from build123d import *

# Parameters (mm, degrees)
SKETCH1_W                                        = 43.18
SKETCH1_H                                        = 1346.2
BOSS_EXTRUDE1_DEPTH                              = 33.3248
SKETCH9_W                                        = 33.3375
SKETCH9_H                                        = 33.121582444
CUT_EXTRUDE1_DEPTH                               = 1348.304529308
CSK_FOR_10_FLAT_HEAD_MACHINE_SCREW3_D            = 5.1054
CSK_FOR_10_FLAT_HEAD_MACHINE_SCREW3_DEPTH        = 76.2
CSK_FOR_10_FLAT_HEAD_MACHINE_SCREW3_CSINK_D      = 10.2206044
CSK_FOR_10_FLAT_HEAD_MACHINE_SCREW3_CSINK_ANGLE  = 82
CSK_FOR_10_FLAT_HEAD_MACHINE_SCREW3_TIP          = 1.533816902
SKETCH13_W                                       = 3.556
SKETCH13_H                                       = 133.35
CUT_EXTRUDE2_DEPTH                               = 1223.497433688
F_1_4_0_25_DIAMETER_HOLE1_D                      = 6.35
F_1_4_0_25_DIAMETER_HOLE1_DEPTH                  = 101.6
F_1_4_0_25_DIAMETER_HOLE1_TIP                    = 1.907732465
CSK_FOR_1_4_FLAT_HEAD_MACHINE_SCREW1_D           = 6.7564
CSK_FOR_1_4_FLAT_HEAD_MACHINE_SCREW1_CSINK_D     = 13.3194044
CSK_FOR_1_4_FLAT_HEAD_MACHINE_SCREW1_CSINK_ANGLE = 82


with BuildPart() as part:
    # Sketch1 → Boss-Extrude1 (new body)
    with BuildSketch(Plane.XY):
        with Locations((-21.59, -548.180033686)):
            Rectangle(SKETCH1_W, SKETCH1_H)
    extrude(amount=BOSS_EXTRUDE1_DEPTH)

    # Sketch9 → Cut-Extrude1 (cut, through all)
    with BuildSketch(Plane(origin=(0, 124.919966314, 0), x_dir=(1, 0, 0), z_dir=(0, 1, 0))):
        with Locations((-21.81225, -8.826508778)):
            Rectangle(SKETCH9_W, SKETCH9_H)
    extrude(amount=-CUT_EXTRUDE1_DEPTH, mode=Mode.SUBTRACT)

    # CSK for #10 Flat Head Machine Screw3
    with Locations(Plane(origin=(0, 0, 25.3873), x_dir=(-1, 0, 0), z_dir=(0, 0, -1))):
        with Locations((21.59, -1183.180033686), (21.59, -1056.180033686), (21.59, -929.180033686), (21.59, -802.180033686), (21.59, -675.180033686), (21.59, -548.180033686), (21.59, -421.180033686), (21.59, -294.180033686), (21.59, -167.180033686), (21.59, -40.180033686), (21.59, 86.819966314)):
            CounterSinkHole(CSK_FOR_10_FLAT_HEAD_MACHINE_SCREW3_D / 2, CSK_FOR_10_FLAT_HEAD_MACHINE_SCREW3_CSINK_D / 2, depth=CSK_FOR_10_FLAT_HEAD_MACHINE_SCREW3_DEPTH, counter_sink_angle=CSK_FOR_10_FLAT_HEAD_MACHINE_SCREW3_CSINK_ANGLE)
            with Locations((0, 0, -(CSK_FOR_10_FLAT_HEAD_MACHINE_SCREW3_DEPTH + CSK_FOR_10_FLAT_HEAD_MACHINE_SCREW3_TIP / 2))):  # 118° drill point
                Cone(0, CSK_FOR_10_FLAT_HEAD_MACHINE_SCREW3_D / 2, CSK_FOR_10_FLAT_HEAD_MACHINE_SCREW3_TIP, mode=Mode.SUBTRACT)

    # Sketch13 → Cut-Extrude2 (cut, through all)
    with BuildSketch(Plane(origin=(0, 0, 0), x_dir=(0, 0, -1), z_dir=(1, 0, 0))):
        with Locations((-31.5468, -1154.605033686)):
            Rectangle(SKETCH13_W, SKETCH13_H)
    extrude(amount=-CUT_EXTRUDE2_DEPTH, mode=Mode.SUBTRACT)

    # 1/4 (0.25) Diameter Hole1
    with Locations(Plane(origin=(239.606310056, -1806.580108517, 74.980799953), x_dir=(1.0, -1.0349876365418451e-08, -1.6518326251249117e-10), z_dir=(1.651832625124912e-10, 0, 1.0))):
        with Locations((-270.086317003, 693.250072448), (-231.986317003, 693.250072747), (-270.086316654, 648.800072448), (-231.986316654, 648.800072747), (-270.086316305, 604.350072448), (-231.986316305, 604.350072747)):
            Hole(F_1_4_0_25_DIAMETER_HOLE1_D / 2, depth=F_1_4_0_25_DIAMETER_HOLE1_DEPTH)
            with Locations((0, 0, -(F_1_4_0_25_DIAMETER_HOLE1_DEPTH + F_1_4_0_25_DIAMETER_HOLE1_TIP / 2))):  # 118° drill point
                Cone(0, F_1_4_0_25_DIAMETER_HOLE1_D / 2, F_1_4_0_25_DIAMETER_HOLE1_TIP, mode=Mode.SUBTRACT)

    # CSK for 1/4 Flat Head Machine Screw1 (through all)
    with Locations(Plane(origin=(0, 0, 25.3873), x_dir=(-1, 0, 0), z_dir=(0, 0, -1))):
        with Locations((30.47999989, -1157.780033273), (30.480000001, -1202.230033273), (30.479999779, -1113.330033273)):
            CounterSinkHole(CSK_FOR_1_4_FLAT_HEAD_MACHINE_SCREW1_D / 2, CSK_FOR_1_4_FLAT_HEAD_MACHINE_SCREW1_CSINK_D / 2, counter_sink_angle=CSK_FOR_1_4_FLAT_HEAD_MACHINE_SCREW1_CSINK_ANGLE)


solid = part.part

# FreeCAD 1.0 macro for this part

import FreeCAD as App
import Part
import Sketcher

V = App.Vector
Q = App.Units.Quantity


def add_polygon(sketch, points):
    """Adds a closed chain of lines whose ends are joined by coincident constraints."""
    first, n = sketch.GeometryCount, len(points)
    for a, b in zip(points, points[1:] + points[:1]):
        sketch.addGeometry(Part.LineSegment(App.Vector(*a, 0), App.Vector(*b, 0)), False)
    for i in range(n):
        sketch.addConstraint(Sketcher.Constraint("Coincident", first + i, 2, first + (i + 1) % n, 1))

doc = App.newDocument("Part")
body = doc.addObject("PartDesign::Body", "Body")

sketch1 = doc.addObject("Sketcher::SketchObject", "Sketch")
body.addObject(sketch1)
sketch1.AttachmentSupport = (doc.XY_Plane, [""])
sketch1.MapMode = "FlatFace"
add_polygon(sketch1, [(-43.18, 124.919966), (-43.18, -1221.280034), (0, -1221.280034), (0, 124.919966)])
sketch1.addConstraint(Sketcher.Constraint("Vertical", 0))
sketch1.addConstraint(Sketcher.Constraint("Horizontal", 1))
sketch1.addConstraint(Sketcher.Constraint("Vertical", 2))
sketch1.addConstraint(Sketcher.Constraint("Horizontal", 3))
sketch1.addConstraint(Sketcher.Constraint("PointOnObject", 1, 2, -2))
sketch1.addConstraint(Sketcher.Constraint("DistanceY", 0, 2, 0, 1, Q("53 in")))
sketch1.addConstraint(Sketcher.Constraint("DistanceX", 1, 1, 1, 2, Q("1.7 in")))
sketch1.addConstraint(Sketcher.Constraint("DistanceY", 0, 2, -1, 1, Q("1221.280034 mm")))
pad1 = doc.addObject("PartDesign::Pad", "Pad")
body.addObject(pad1)
pad1.Profile = sketch1
pad1.Length = Q("1.312 in")

sketch2 = doc.addObject("Sketcher::SketchObject", "Sketch001")
body.addObject(sketch2)
sketch2.AttachmentSupport = (doc.XZ_Plane, [""])
sketch2.MapMode = "FlatFace"
sketch2.AttachmentOffset = App.Placement(V(0, 0, -124.919966), App.Rotation())
add_polygon(sketch2, [(-38.481, -7.734282), (-38.481, 25.3873), (-5.1435, 25.3873), (-5.1435, -7.734282)])
sketch2.addConstraint(Sketcher.Constraint("Vertical", 0))
sketch2.addConstraint(Sketcher.Constraint("Horizontal", 1))
sketch2.addConstraint(Sketcher.Constraint("Vertical", 2))
sketch2.addConstraint(Sketcher.Constraint("Horizontal", 3))
sketch2.addConstraint(Sketcher.Constraint("DistanceX", 1, 1, 1, 2, Q("1.3125 in")))
sketch2.addConstraint(Sketcher.Constraint("DistanceX", 0, 2, -1, 1, Q("1.515 in")))
sketch2.addConstraint(Sketcher.Constraint("DistanceY", -1, 1, 0, 2, Q("0.9995 in")))
sketch2.addConstraint(Sketcher.Constraint("DistanceY", 0, 1, 0, 2, Q("33.121582 mm")))
pocket1 = doc.addObject("PartDesign::Pocket", "Pocket")
body.addObject(pocket1)
pocket1.Profile = sketch2
pocket1.Type = "ThroughAll"
pocket1.Reversed = True

sketch3 = doc.addObject("Sketcher::SketchObject", "Sketch002")
body.addObject(sketch3)
sketch3.AttachmentSupport = (doc.XY_Plane, [""])
sketch3.MapMode = "FlatFace"
sketch3.AttachmentOffset = App.Placement(V(0, 0, 0.9995 * 25.4), App.Rotation())
sketch3.addGeometry(Part.Circle(V(-21.59, -1183.180034, 0), V(0, 0, 1), 2.5527), False)
sketch3.addGeometry(Part.Circle(V(-21.59, -1056.180034, 0), V(0, 0, 1), 2.5527), False)
sketch3.addGeometry(Part.Circle(V(-21.59, -929.180034, 0), V(0, 0, 1), 2.5527), False)
sketch3.addGeometry(Part.Circle(V(-21.59, -802.180034, 0), V(0, 0, 1), 2.5527), False)
sketch3.addGeometry(Part.Circle(V(-21.59, -675.180034, 0), V(0, 0, 1), 2.5527), False)
sketch3.addGeometry(Part.Circle(V(-21.59, -548.180034, 0), V(0, 0, 1), 2.5527), False)
sketch3.addGeometry(Part.Circle(V(-21.59, -421.180034, 0), V(0, 0, 1), 2.5527), False)
sketch3.addGeometry(Part.Circle(V(-21.59, -294.180034, 0), V(0, 0, 1), 2.5527), False)
sketch3.addGeometry(Part.Circle(V(-21.59, -167.180034, 0), V(0, 0, 1), 2.5527), False)
sketch3.addGeometry(Part.Circle(V(-21.59, -40.180034, 0), V(0, 0, 1), 2.5527), False)
sketch3.addGeometry(Part.Circle(V(-21.59, 86.819966, 0), V(0, 0, 1), 2.5527), False)
sketch3.addConstraint(Sketcher.Constraint("Equal", 0, 1))
sketch3.addConstraint(Sketcher.Constraint("Equal", 1, 2))
sketch3.addConstraint(Sketcher.Constraint("Equal", 2, 3))
sketch3.addConstraint(Sketcher.Constraint("Equal", 3, 4))
sketch3.addConstraint(Sketcher.Constraint("Equal", 4, 5))
sketch3.addConstraint(Sketcher.Constraint("Equal", 5, 6))
sketch3.addConstraint(Sketcher.Constraint("Equal", 6, 7))
sketch3.addConstraint(Sketcher.Constraint("Equal", 7, 8))
sketch3.addConstraint(Sketcher.Constraint("Equal", 8, 9))
sketch3.addConstraint(Sketcher.Constraint("Equal", 9, 10))
sketch3.addConstraint(Sketcher.Constraint("Vertical", 0, 3, 1, 3))
sketch3.addConstraint(Sketcher.Constraint("Vertical", 1, 3, 2, 3))
sketch3.addConstraint(Sketcher.Constraint("Vertical", 2, 3, 3, 3))
sketch3.addConstraint(Sketcher.Constraint("Vertical", 3, 3, 4, 3))
sketch3.addConstraint(Sketcher.Constraint("Vertical", 4, 3, 5, 3))
sketch3.addConstraint(Sketcher.Constraint("Vertical", 5, 3, 6, 3))
sketch3.addConstraint(Sketcher.Constraint("Vertical", 6, 3, 7, 3))
sketch3.addConstraint(Sketcher.Constraint("Vertical", 7, 3, 8, 3))
sketch3.addConstraint(Sketcher.Constraint("Vertical", 8, 3, 9, 3))
sketch3.addConstraint(Sketcher.Constraint("Vertical", 9, 3, 10, 3))
sketch3.addConstraint(Sketcher.Constraint("Diameter", 0, Q("0.201 in")))
sketch3.addConstraint(Sketcher.Constraint("DistanceY", 0, 3, 1, 3, Q("5 in")))
sketch3.addConstraint(Sketcher.Constraint("DistanceY", 1, 3, 2, 3, Q("5 in")))
sketch3.addConstraint(Sketcher.Constraint("DistanceY", 2, 3, 3, 3, Q("5 in")))
sketch3.addConstraint(Sketcher.Constraint("DistanceY", 3, 3, 4, 3, Q("5 in")))
sketch3.addConstraint(Sketcher.Constraint("DistanceY", 4, 3, 5, 3, Q("5 in")))
sketch3.addConstraint(Sketcher.Constraint("DistanceY", 5, 3, 6, 3, Q("5 in")))
sketch3.addConstraint(Sketcher.Constraint("DistanceY", 6, 3, 7, 3, Q("5 in")))
sketch3.addConstraint(Sketcher.Constraint("DistanceY", 7, 3, 8, 3, Q("5 in")))
sketch3.addConstraint(Sketcher.Constraint("DistanceY", 8, 3, 9, 3, Q("5 in")))
sketch3.addConstraint(Sketcher.Constraint("DistanceY", 9, 3, 10, 3, Q("5 in")))
sketch3.addConstraint(Sketcher.Constraint("DistanceX", 0, 3, -1, 1, Q("0.85 in")))
sketch3.addConstraint(Sketcher.Constraint("DistanceY", 0, 3, -1, 1, Q("1183.180034 mm")))
doc.recompute()
hole = doc.addObject("PartDesign::Hole", "Hole")
body.addObject(hole)
hole.Profile = sketch3
hole.ThreadType = "None"
hole.Diameter = Q("0.201 in")
hole.DepthType = "Dimension"
hole.Depth = Q("3 in")
hole.DrillPoint = "Angled"
hole.DrillPointAngle = 118
hole.HoleCutType = "Countersink"
hole.HoleCutDiameter = 10.220604
hole.HoleCutCountersinkAngle = 82
hole.Reversed = True

sketch4 = doc.addObject("Sketcher::SketchObject", "Sketch003")
body.addObject(sketch4)
sketch4.AttachmentSupport = (doc.YZ_Plane, [""])
sketch4.MapMode = "FlatFace"
add_polygon(sketch4, [(-1087.930034, 33.3248), (-1221.280034, 33.3248), (-1221.280034, 29.7688), (-1087.930034, 29.7688)])
sketch4.addConstraint(Sketcher.Constraint("Horizontal", 0))
sketch4.addConstraint(Sketcher.Constraint("Vertical", 1))
sketch4.addConstraint(Sketcher.Constraint("Horizontal", 2))
sketch4.addConstraint(Sketcher.Constraint("Vertical", 3))
sketch4.addConstraint(Sketcher.Constraint("DistanceX", 0, 2, 0, 1, Q("5.25 in")))
sketch4.addConstraint(Sketcher.Constraint("DistanceY", 1, 2, 1, 1, Q("0.14 in")))
sketch4.addConstraint(Sketcher.Constraint("DistanceY", -1, 1, 0, 2, Q("1.312 in")))
sketch4.addConstraint(Sketcher.Constraint("DistanceX", 0, 2, -1, 1, Q("1221.280034 mm")))
pocket2 = doc.addObject("PartDesign::Pocket", "Pocket001")
body.addObject(pocket2)
pocket2.Profile = sketch4
pocket2.Type = "ThroughAll"

sketch5 = doc.addObject("Sketcher::SketchObject", "Sketch004")
body.addObject(sketch5)
sketch5.AttachmentSupport = (doc.XY_Plane, [""])
sketch5.MapMode = "FlatFace"
sketch5.AttachmentOffset = App.Placement(V(0, 0, 2.952 * 25.4), App.Rotation())
sketch5.addGeometry(Part.Circle(V(-30.479999, -1113.330033, 0), V(0, 0, 1), 3.175), False)
sketch5.addGeometry(Part.Circle(V(7.620001, -1113.330033, 0), V(0, 0, 1), 3.175), False)
sketch5.addGeometry(Part.Circle(V(-30.479999, -1157.780033, 0), V(0, 0, 1), 3.175), False)
sketch5.addGeometry(Part.Circle(V(7.620001, -1157.780033, 0), V(0, 0, 1), 3.175), False)
sketch5.addGeometry(Part.Circle(V(-30.48, -1202.230033, 0), V(0, 0, 1), 3.175), False)
sketch5.addGeometry(Part.Circle(V(7.62, -1202.230033, 0), V(0, 0, 1), 3.175), False)
sketch5.addConstraint(Sketcher.Constraint("Equal", 0, 1))
sketch5.addConstraint(Sketcher.Constraint("Equal", 1, 2))
sketch5.addConstraint(Sketcher.Constraint("Equal", 2, 3))
sketch5.addConstraint(Sketcher.Constraint("Equal", 3, 4))
sketch5.addConstraint(Sketcher.Constraint("Equal", 4, 5))
sketch5.addConstraint(Sketcher.Constraint("Horizontal", 0, 3, 1, 3))
sketch5.addConstraint(Sketcher.Constraint("Horizontal", 2, 3, 3, 3))
sketch5.addConstraint(Sketcher.Constraint("Horizontal", 4, 3, 5, 3))
sketch5.addConstraint(Sketcher.Constraint("Vertical", 0, 3, 2, 3))
sketch5.addConstraint(Sketcher.Constraint("Vertical", 1, 3, 3, 3))
sketch5.addConstraint(Sketcher.Constraint("Vertical", 2, 3, 4, 3))
sketch5.addConstraint(Sketcher.Constraint("Vertical", 3, 3, 5, 3))
sketch5.addConstraint(Sketcher.Constraint("Diameter", 0, Q("0.25 in")))
sketch5.addConstraint(Sketcher.Constraint("DistanceX", 0, 3, -1, 1, Q("1.2 in")))
sketch5.addConstraint(Sketcher.Constraint("DistanceX", -1, 1, 1, 3, Q("0.3 in")))
sketch5.addConstraint(Sketcher.Constraint("DistanceY", 4, 3, 0, 3, Q("3.5 in")))
sketch5.addConstraint(Sketcher.Constraint("DistanceY", 2, 3, 0, 3, Q("1.75 in")))
sketch5.addConstraint(Sketcher.Constraint("DistanceY", 0, 3, -1, 1, Q("1113.330033 mm")))
doc.recompute()
hole2 = doc.addObject("PartDesign::Hole", "Hole001")
body.addObject(hole2)
hole2.Profile = sketch5
hole2.ThreadType = "None"
hole2.Diameter = Q("0.25 in")
hole2.DepthType = "Dimension"
hole2.Depth = Q("4 in")
hole2.DrillPoint = "Angled"
hole2.DrillPointAngle = 118

sketch6 = doc.addObject("Sketcher::SketchObject", "Sketch005")
body.addObject(sketch6)
sketch6.AttachmentSupport = (doc.XY_Plane, [""])
sketch6.MapMode = "FlatFace"
sketch6.AttachmentOffset = App.Placement(V(0, 0, 0.9995 * 25.4), App.Rotation())
sketch6.addGeometry(Part.Circle(V(-30.48, -1157.780033, 0), V(0, 0, 1), 3.3782), False)
sketch6.addGeometry(Part.Circle(V(-30.48, -1202.230033, 0), V(0, 0, 1), 3.3782), False)
sketch6.addGeometry(Part.Circle(V(-30.48, -1113.330033, 0), V(0, 0, 1), 3.3782), False)
sketch6.addConstraint(Sketcher.Constraint("Equal", 0, 1))
sketch6.addConstraint(Sketcher.Constraint("Equal", 1, 2))
sketch6.addConstraint(Sketcher.Constraint("Vertical", 0, 3, 1, 3))
sketch6.addConstraint(Sketcher.Constraint("Vertical", 1, 3, 2, 3))
sketch6.addConstraint(Sketcher.Constraint("Diameter", 0, Q("0.266 in")))
sketch6.addConstraint(Sketcher.Constraint("DistanceX", 0, 3, -1, 1, Q("1.2 in")))
sketch6.addConstraint(Sketcher.Constraint("DistanceY", 1, 3, 2, 3, Q("3.5 in")))
sketch6.addConstraint(Sketcher.Constraint("DistanceY", 1, 3, 0, 3, Q("1.75 in")))
sketch6.addConstraint(Sketcher.Constraint("DistanceY", 0, 3, -1, 1, Q("1157.780033 mm")))
doc.recompute()
hole3 = doc.addObject("PartDesign::Hole", "Hole002")
body.addObject(hole3)
hole3.Profile = sketch6
hole3.ThreadType = "None"
hole3.Diameter = Q("0.266 in")
hole3.DepthType = "ThroughAll"
hole3.HoleCutType = "Countersink"
hole3.HoleCutDiameter = 13.319404
hole3.HoleCutCountersinkAngle = 82
hole3.Reversed = True

doc.recompute()
